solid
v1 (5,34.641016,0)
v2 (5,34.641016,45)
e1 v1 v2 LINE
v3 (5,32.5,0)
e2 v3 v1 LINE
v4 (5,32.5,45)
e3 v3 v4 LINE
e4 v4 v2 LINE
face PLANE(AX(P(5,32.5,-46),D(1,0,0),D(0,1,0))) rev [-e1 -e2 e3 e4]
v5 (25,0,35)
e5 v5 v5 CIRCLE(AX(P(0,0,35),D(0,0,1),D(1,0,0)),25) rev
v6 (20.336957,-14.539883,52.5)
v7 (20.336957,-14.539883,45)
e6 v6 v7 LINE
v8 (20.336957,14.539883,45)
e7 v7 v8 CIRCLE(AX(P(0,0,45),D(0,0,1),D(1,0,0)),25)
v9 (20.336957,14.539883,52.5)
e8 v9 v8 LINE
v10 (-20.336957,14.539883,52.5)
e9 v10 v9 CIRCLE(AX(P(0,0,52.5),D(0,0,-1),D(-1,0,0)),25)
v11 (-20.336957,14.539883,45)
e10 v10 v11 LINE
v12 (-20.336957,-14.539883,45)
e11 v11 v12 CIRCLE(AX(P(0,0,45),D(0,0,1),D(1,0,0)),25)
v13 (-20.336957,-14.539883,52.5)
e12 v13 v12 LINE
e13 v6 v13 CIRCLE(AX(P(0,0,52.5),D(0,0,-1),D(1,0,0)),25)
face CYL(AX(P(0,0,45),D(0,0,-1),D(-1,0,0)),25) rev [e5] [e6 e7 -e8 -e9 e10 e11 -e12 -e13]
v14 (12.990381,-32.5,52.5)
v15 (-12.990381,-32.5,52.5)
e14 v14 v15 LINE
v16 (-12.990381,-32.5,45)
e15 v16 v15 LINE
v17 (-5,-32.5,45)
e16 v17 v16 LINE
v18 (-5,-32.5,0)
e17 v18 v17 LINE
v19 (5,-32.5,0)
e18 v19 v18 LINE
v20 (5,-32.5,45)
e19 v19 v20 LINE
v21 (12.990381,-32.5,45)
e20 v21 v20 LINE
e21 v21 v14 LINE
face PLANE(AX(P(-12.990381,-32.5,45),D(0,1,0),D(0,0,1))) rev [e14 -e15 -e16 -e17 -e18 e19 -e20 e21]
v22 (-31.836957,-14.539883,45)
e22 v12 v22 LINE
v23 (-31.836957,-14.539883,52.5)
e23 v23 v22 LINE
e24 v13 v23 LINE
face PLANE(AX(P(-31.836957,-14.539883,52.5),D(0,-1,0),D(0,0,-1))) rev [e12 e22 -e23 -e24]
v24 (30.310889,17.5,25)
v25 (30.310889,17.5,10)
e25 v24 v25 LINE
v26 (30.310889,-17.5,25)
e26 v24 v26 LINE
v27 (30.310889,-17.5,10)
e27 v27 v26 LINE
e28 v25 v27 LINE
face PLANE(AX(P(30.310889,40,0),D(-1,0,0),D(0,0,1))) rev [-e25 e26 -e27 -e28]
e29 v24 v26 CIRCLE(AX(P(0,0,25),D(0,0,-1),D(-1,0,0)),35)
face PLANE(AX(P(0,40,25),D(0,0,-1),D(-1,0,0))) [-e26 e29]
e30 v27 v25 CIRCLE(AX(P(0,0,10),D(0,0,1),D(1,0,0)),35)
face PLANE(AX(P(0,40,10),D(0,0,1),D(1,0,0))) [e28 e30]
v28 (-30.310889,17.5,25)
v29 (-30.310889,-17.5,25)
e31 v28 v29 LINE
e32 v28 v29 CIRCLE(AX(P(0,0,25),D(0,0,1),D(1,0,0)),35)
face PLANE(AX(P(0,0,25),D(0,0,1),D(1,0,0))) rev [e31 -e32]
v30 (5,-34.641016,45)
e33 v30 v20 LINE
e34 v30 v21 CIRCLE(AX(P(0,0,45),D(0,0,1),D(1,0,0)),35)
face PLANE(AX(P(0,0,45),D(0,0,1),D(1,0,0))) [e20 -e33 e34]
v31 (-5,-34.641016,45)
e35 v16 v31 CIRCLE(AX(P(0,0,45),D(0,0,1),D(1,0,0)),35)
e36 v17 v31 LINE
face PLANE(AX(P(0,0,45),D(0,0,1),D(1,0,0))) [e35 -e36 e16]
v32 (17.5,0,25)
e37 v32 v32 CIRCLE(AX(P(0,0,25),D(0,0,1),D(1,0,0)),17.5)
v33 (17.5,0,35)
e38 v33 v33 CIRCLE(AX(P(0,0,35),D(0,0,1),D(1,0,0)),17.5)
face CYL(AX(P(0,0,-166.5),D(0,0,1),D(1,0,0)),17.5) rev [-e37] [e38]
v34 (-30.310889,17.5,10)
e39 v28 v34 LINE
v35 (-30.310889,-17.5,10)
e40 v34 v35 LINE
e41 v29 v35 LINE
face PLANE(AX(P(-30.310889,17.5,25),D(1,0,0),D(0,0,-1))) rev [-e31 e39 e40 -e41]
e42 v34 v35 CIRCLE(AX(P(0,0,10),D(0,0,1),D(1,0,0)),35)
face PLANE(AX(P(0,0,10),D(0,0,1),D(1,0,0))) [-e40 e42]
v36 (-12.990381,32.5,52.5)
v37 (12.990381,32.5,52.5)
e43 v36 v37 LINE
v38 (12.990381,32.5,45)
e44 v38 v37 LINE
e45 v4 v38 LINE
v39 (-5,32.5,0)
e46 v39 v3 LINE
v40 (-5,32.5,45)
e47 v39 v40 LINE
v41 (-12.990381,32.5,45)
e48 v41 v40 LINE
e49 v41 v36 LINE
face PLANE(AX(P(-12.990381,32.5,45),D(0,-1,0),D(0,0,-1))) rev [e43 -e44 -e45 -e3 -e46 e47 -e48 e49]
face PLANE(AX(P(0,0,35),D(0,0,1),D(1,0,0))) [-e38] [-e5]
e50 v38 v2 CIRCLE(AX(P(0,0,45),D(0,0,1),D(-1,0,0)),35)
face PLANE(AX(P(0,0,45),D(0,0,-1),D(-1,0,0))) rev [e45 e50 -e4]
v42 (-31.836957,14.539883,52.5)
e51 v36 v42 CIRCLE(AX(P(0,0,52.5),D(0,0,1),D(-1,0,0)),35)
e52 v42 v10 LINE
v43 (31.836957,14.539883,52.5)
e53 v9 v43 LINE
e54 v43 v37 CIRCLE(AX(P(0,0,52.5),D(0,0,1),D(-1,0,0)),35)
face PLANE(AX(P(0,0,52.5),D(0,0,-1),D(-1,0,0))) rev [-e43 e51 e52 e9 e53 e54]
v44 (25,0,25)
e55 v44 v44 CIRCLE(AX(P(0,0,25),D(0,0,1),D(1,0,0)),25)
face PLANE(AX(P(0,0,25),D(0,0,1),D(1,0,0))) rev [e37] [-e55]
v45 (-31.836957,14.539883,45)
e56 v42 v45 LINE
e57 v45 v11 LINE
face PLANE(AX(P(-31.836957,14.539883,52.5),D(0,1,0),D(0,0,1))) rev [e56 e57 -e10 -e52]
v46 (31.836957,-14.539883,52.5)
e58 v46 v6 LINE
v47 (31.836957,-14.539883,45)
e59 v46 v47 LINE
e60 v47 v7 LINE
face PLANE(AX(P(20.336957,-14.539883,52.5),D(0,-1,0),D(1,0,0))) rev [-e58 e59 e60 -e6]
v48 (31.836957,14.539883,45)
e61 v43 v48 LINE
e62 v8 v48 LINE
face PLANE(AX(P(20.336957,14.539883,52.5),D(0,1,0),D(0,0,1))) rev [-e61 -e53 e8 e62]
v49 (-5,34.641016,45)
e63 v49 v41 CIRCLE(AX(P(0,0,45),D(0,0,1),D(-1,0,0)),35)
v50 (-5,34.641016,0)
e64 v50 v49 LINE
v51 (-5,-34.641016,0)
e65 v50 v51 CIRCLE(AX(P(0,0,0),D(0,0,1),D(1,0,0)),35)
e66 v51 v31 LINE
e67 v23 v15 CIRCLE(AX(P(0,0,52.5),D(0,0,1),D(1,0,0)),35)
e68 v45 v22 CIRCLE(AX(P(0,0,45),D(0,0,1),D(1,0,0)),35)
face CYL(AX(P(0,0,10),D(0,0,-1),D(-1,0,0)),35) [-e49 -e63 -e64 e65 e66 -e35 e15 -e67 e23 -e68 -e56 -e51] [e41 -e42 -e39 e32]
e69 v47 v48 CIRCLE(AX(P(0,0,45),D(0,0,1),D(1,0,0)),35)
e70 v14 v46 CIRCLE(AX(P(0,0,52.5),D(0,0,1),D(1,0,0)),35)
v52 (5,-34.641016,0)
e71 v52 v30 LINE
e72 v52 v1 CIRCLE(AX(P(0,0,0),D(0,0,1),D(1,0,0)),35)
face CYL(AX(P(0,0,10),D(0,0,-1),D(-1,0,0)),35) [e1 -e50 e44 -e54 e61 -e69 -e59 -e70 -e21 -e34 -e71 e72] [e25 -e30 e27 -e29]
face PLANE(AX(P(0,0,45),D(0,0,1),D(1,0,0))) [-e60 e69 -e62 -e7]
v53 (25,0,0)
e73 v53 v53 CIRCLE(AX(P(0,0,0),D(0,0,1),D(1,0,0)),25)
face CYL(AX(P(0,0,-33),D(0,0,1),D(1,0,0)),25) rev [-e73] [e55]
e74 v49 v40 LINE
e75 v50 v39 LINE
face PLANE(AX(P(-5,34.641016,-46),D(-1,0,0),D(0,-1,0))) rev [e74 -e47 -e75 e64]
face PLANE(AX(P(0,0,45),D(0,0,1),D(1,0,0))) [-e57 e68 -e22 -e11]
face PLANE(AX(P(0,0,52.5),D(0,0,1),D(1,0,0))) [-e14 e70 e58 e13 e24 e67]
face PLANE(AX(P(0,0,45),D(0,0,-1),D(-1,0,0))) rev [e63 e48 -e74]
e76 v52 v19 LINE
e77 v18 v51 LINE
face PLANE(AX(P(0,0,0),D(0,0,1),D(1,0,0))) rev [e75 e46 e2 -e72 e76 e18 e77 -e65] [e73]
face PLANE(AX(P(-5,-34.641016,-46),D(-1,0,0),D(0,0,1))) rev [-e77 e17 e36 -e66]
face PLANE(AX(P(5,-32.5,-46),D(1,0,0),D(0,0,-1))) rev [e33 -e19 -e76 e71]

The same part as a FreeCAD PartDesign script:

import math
import FreeCAD as App
import Part
import Sketcher

V = App.Vector


def add_polygon(sketch, points):
    """Adds a closed chain of lines whose ends are joined by coincident constraints."""
    first, n = sketch.GeometryCount, len(points)
    for a, b in zip(points, points[1:] + points[:1]):
        sketch.addGeometry(Part.LineSegment(App.Vector(*a, 0), App.Vector(*b, 0)), False)
    for i in range(n):
        sketch.addConstraint(Sketcher.Constraint("Coincident", first + i, 2, first + (i + 1) % n, 1))

doc = App.newDocument("Part")
body = doc.addObject("PartDesign::Body", "Body")

sketch1 = body.newObject("Sketcher::SketchObject", "Sketch")
sketch1.AttachmentSupport = (doc.getObject("XY_Plane"), [""])
sketch1.MapMode = "FlatFace"
sketch1.addGeometry(Part.Circle(V(0, 0, 0), V(0, 0, 1), 35), False)
sketch1.addConstraint(Sketcher.Constraint("Coincident", 0, 3, -1, 1))
sketch1.addConstraint(Sketcher.Constraint("Diameter", 0, 70.0))
pad1 = body.newObject("PartDesign::Pad", "Pad")
pad1.Profile = sketch1
pad1.Length = 10

sketch2 = body.newObject("Sketcher::SketchObject", "Sketch001")
sketch2.AttachmentSupport = (doc.getObject("XY_Plane"), [""])
sketch2.MapMode = "FlatFace"
sketch2.AttachmentOffset = App.Placement(V(0, 0, 10), App.Rotation())
sketch2.addGeometry(Part.LineSegment(V(-30, 18, 0), V(-30, -18, 0)), False)
sketch2.addGeometry(Part.ArcOfCircle(Part.Circle(V(0, 0, 0), V(0, 0, 1), 35), math.radians(-150), math.radians(150)), False)
sketch2.addConstraint(Sketcher.Constraint("Coincident", 0, 1, 1, 2))
sketch2.addConstraint(Sketcher.Constraint("Coincident", 1, 1, 0, 2))
sketch2.addConstraint(Sketcher.Constraint("Vertical", 0))
sketch2.addConstraint(Sketcher.Constraint("Coincident", 1, 3, -1, 1))
sketch2.addConstraint(Sketcher.Constraint("Radius", 1, 35.0))
sketch2.addConstraint(Sketcher.Constraint("DistanceY", 0, 2, 0, 1, 35.0))
pad2 = body.newObject("PartDesign::Pad", "Pad001")
pad2.Profile = sketch2
pad2.Length = 15

sketch3 = body.newObject("Sketcher::SketchObject", "Sketch002")
sketch3.AttachmentSupport = (doc.getObject("XY_Plane"), [""])
sketch3.MapMode = "FlatFace"
sketch3.AttachmentOffset = App.Placement(V(0, 0, 25), App.Rotation())
sketch3.addGeometry(Part.Circle(V(0, 0, 0), V(0, 0, 1), 25), False)
sketch3.addConstraint(Sketcher.Constraint("Coincident", 0, 3, -1, 1))
sketch3.addConstraint(Sketcher.Constraint("Diameter", 0, 50.0))
pocket1 = body.newObject("PartDesign::Pocket", "Pocket")
pocket1.Profile = sketch3
pocket1.Length = 58

sketch4 = body.newObject("Sketcher::SketchObject", "Sketch003")
sketch4.AttachmentSupport = (doc.getObject("XY_Plane"), [""])
sketch4.MapMode = "FlatFace"
sketch4.AttachmentOffset = App.Placement(V(0, 0, 25), App.Rotation())
sketch4.addGeometry(Part.Circle(V(0, 0, 0), V(0, 0, 1), 35), False)
sketch4.addConstraint(Sketcher.Constraint("Coincident", 0, 3, -1, 1))
sketch4.addConstraint(Sketcher.Constraint("Diameter", 0, 70.0))
pad3 = body.newObject("PartDesign::Pad", "Pad002")
pad3.Profile = sketch4
pad3.Length = 10

sketch5 = body.newObject("Sketcher::SketchObject", "Sketch004")
sketch5.AttachmentSupport = (doc.getObject("XY_Plane"), [""])
sketch5.MapMode = "FlatFace"
sketch5.AttachmentOffset = App.Placement(V(0, 0, 35), App.Rotation())
sketch5.addGeometry(Part.Circle(V(0, 0, 0), V(0, 0, 1), 18), False)
sketch5.addConstraint(Sketcher.Constraint("Coincident", 0, 3, -1, 1))
sketch5.addConstraint(Sketcher.Constraint("Diameter", 0, 35.0))
pocket2 = body.newObject("PartDesign::Pocket", "Pocket001")
pocket2.Profile = sketch5
pocket2.Length = 201.5

sketch6 = body.newObject("Sketcher::SketchObject", "Sketch005")
sketch6.AttachmentSupport = (doc.getObject("XY_Plane"), [""])
sketch6.MapMode = "FlatFace"
sketch6.AttachmentOffset = App.Placement(V(0, 0, 35), App.Rotation())
sketch6.addGeometry(Part.Circle(V(0, 0, 0), V(0, 0, 1), 35), False)
sketch6.addGeometry(Part.Circle(V(0, 0, 0), V(0, 0, 1), 25), False)
sketch6.addConstraint(Sketcher.Constraint("Coincident", 0, 3, -1, 1))
sketch6.addConstraint(Sketcher.Constraint("Coincident", 1, 3, -1, 1))
sketch6.addConstraint(Sketcher.Constraint("Diameter", 0, 70.0))
sketch6.addConstraint(Sketcher.Constraint("Diameter", 1, 50.0))
pad4 = body.newObject("PartDesign::Pad", "Pad003")
pad4.Profile = sketch6
pad4.Length = 10

sketch7 = body.newObject("Sketcher::SketchObject", "Sketch006")
sketch7.AttachmentSupport = (doc.getObject("XY_Plane"), [""])
sketch7.MapMode = "FlatFace"
sketch7.AttachmentOffset = App.Placement(V(0, 0, 45), App.Rotation())
sketch7.addGeometry(Part.LineSegment(V(-32, 15, 0), V(-20, 15, 0)), False)
sketch7.addGeometry(Part.ArcOfCircle(Part.Circle(V(0, 0, 0), V(0, 0, 1), 25), math.radians(36), math.radians(144)), False)
sketch7.addGeometry(Part.LineSegment(V(20, 15, 0), V(32, 15, 0)), False)
sketch7.addGeometry(Part.ArcOfCircle(Part.Circle(V(0, 0, 0), V(0, 0, 1), 35), math.radians(25), math.radians(155)), False)
sketch7.addGeometry(Part.LineSegment(V(-20, -15, 0), V(-32, -15, 0)), False)
sketch7.addGeometry(Part.ArcOfCircle(Part.Circle(V(0, 0, 0), V(0, 0, 1), 35), math.radians(-155), math.radians(-25)), False)
sketch7.addGeometry(Part.LineSegment(V(32, -15, 0), V(20, -15, 0)), False)
sketch7.addGeometry(Part.ArcOfCircle(Part.Circle(V(0, 0, 0), V(0, 0, 1), 25), math.radians(-144), math.radians(-36)), False)
sketch7.addConstraint(Sketcher.Constraint("Coincident", 0, 2, 1, 2))
sketch7.addConstraint(Sketcher.Constraint("Coincident", 1, 1, 2, 1))
sketch7.addConstraint(Sketcher.Constraint("Coincident", 2, 2, 3, 1))
sketch7.addConstraint(Sketcher.Constraint("Coincident", 3, 2, 0, 1))
sketch7.addConstraint(Sketcher.Constraint("Coincident", 4, 2, 5, 1))
sketch7.addConstraint(Sketcher.Constraint("Coincident", 5, 2, 6, 1))
sketch7.addConstraint(Sketcher.Constraint("Coincident", 6, 2, 7, 2))
sketch7.addConstraint(Sketcher.Constraint("Coincident", 7, 1, 4, 1))
sketch7.addConstraint(Sketcher.Constraint("Horizontal", 0))
sketch7.addConstraint(Sketcher.Constraint("Horizontal", 2))
sketch7.addConstraint(Sketcher.Constraint("Horizontal", 4))
sketch7.addConstraint(Sketcher.Constraint("Horizontal", 6))
sketch7.addConstraint(Sketcher.Constraint("Coincident", 1, 3, -1, 1))
sketch7.addConstraint(Sketcher.Constraint("Coincident", 3, 3, -1, 1))
sketch7.addConstraint(Sketcher.Constraint("Coincident", 5, 3, -1, 1))
sketch7.addConstraint(Sketcher.Constraint("Coincident", 7, 3, -1, 1))
sketch7.addConstraint(Sketcher.Constraint("Equal", 3, 5))
sketch7.addConstraint(Sketcher.Constraint("Equal", 1, 7))
sketch7.addConstraint(Sketcher.Constraint("Horizontal", 0, 2, 1, 1))
sketch7.addConstraint(Sketcher.Constraint("Horizontal", 4, 2, 5, 2))
sketch7.addConstraint(Sketcher.Constraint("Vertical", 3, 2, 4, 2))
sketch7.addConstraint(Sketcher.Constraint("Radius", 1, 25.0))
sketch7.addConstraint(Sketcher.Constraint("Radius", 3, 35.0))
sketch7.addConstraint(Sketcher.Constraint("DistanceX", 0, 1, 0, 2, 11.5))
pad5 = body.newObject("PartDesign::Pad", "Pad004")
pad5.Profile = sketch7
pad5.Length = 7.5

sketch8 = body.newObject("Sketcher::SketchObject", "Sketch007")
sketch8.AttachmentSupport = (doc.getObject("XY_Plane"), [""])
sketch8.MapMode = "FlatFace"
sketch8.AttachmentOffset = App.Placement(V(0, 0, 52.5), App.Rotation())
sketch8.addGeometry(Part.LineSegment(V(13, -32, 0), V(-13, -32, 0)), False)
sketch8.addGeometry(Part.ArcOfCircle(Part.Circle(V(0, 0, 0), V(0, 0, 1), 35), math.radians(-112), math.radians(-68)), False)
sketch8.addGeometry(Part.LineSegment(V(-13, 32, 0), V(13, 32, 0)), False)
sketch8.addGeometry(Part.ArcOfCircle(Part.Circle(V(0, 0, 0), V(0, 0, 1), 35), math.radians(68), math.radians(112)), False)
sketch8.addConstraint(Sketcher.Constraint("Coincident", 0, 1, 1, 2))
sketch8.addConstraint(Sketcher.Constraint("Coincident", 1, 1, 0, 2))
sketch8.addConstraint(Sketcher.Constraint("Coincident", 2, 1, 3, 2))
sketch8.addConstraint(Sketcher.Constraint("Coincident", 3, 1, 2, 2))
sketch8.addConstraint(Sketcher.Constraint("Horizontal", 0))
sketch8.addConstraint(Sketcher.Constraint("Horizontal", 2))
sketch8.addConstraint(Sketcher.Constraint("Coincident", 1, 3, -1, 1))
sketch8.addConstraint(Sketcher.Constraint("Coincident", 3, 3, -1, 1))
sketch8.addConstraint(Sketcher.Constraint("Equal", 1, 3))
sketch8.addConstraint(Sketcher.Constraint("Vertical", 1, 1, 2, 1))
sketch8.addConstraint(Sketcher.Constraint("Radius", 1, 35.0))
sketch8.addConstraint(Sketcher.Constraint("DistanceY", 1, 1, 2, 1, 65.0))
pocket3 = body.newObject("PartDesign::Pocket", "Pocket002")
pocket3.Profile = sketch8
pocket3.Length = 7.5

sketch9 = body.newObject("Sketcher::SketchObject", "Sketch008")
sketch9.AttachmentSupport = (doc.getObject("XY_Plane"), [""])
sketch9.MapMode = "FlatFace"
sketch9.AttachmentOffset = App.Placement(V(0, 0, 45), App.Rotation())
sketch9.addGeometry(Part.LineSegment(V(-5, 34.6, 0), V(-5, 32.5, 0)), False)
sketch9.addGeometry(Part.LineSegment(V(-5, 32.5, 0), V(5, 32.5, 0)), False)
sketch9.addGeometry(Part.LineSegment(V(5, 32.5, 0), V(5, 34.6, 0)), False)
sketch9.addGeometry(Part.ArcOfCircle(Part.Circle(V(0, 0, 0), V(0, 0, 1), 35), math.radians(81.79), math.radians(98.21)), False)
sketch9.addConstraint(Sketcher.Constraint("Coincident", 0, 2, 1, 1))
sketch9.addConstraint(Sketcher.Constraint("Coincident", 1, 2, 2, 1))
sketch9.addConstraint(Sketcher.Constraint("Coincident", 2, 2, 3, 1))
sketch9.addConstraint(Sketcher.Constraint("Coincident", 3, 2, 0, 1))
sketch9.addConstraint(Sketcher.Constraint("Vertical", 0))
sketch9.addConstraint(Sketcher.Constraint("Horizontal", 1))
sketch9.addConstraint(Sketcher.Constraint("Vertical", 2))
sketch9.addConstraint(Sketcher.Constraint("Coincident", 3, 3, -1, 1))
sketch9.addConstraint(Sketcher.Constraint("Horizontal", 2, 2, 3, 2))
sketch9.addConstraint(Sketcher.Constraint("Radius", 3, 35.0))
sketch9.addConstraint(Sketcher.Constraint("DistanceX", 1, 1, 1, 2, 10.0))
sketch9.addConstraint(Sketcher.Constraint("DistanceY", -1, 1, 0, 2, 32.5))
pocket4 = body.newObject("PartDesign::Pocket", "Pocket003")
pocket4.Profile = sketch9
pocket4.Length = 91

sketch10 = body.newObject("Sketcher::SketchObject", "Sketch009")
sketch10.AttachmentSupport = (doc.getObject("XY_Plane"), [""])
sketch10.MapMode = "FlatFace"
sketch10.AttachmentOffset = App.Placement(V(0, 0, 45), App.Rotation())
sketch10.addGeometry(Part.LineSegment(V(-5, -32.5, 0), V(-5, -34.6, 0)), False)
sketch10.addGeometry(Part.ArcOfCircle(Part.Circle(V(0, 0, 0), V(0, 0, 1), 35), math.radians(-98.21), math.radians(-81.79)), False)
sketch10.addGeometry(Part.LineSegment(V(5, -34.6, 0), V(5, -32.5, 0)), False)
sketch10.addGeometry(Part.LineSegment(V(5, -32.5, 0), V(-5, -32.5, 0)), False)
sketch10.addConstraint(Sketcher.Constraint("Coincident", 0, 2, 1, 1))
sketch10.addConstraint(Sketcher.Constraint("Coincident", 1, 2, 2, 1))
sketch10.addConstraint(Sketcher.Constraint("Coincident", 2, 2, 3, 1))
sketch10.addConstraint(Sketcher.Constraint("Coincident", 3, 2, 0, 1))
sketch10.addConstraint(Sketcher.Constraint("Vertical", 0))
sketch10.addConstraint(Sketcher.Constraint("Vertical", 2))
sketch10.addConstraint(Sketcher.Constraint("Horizontal", 3))
sketch10.addConstraint(Sketcher.Constraint("Coincident", 1, 3, -1, 1))
sketch10.addConstraint(Sketcher.Constraint("Horizontal", 0, 2, 1, 2))
sketch10.addConstraint(Sketcher.Constraint("Radius", 1, 35.0))
sketch10.addConstraint(Sketcher.Constraint("DistanceX", 3, 2, 3, 1, 10.0))
sketch10.addConstraint(Sketcher.Constraint("DistanceY", 2, 2, -1, 1, 32.5))
pocket5 = body.newObject("PartDesign::Pocket", "Pocket004")
pocket5.Profile = sketch10
pocket5.Length = 91

sketch11 = body.newObject("Sketcher::SketchObject", "Sketch010")
sketch11.AttachmentSupport = (doc.getObject("XZ_Plane"), [""])
sketch11.MapMode = "FlatFace"
add_polygon(sketch11, [(30.3, 10), (30.3, 25), (35, 25), (35, 10)])
sketch11.addConstraint(Sketcher.Constraint("Vertical", 0))
sketch11.addConstraint(Sketcher.Constraint("Horizontal", 1))
sketch11.addConstraint(Sketcher.Constraint("Vertical", 2))
sketch11.addConstraint(Sketcher.Constraint("Horizontal", 3))
sketch11.addConstraint(Sketcher.Constraint("DistanceY", 0, 1, 0, 2, 15.0))
sketch11.addConstraint(Sketcher.Constraint("DistanceY", -1, 1, 0, 2, 25.0))
sketch11.addConstraint(Sketcher.Constraint("DistanceX", -1, 1, 1, 2, 35.0))
sketch11.addConstraint(Sketcher.Constraint("DistanceX", 1, 1, 1, 2, 4.689111))
pocket6 = body.newObject("PartDesign::Pocket", "Pocket005")
pocket6.Profile = sketch11
pocket6.Type = "ThroughAll"
pocket6.Midplane = True

doc.recompute()
